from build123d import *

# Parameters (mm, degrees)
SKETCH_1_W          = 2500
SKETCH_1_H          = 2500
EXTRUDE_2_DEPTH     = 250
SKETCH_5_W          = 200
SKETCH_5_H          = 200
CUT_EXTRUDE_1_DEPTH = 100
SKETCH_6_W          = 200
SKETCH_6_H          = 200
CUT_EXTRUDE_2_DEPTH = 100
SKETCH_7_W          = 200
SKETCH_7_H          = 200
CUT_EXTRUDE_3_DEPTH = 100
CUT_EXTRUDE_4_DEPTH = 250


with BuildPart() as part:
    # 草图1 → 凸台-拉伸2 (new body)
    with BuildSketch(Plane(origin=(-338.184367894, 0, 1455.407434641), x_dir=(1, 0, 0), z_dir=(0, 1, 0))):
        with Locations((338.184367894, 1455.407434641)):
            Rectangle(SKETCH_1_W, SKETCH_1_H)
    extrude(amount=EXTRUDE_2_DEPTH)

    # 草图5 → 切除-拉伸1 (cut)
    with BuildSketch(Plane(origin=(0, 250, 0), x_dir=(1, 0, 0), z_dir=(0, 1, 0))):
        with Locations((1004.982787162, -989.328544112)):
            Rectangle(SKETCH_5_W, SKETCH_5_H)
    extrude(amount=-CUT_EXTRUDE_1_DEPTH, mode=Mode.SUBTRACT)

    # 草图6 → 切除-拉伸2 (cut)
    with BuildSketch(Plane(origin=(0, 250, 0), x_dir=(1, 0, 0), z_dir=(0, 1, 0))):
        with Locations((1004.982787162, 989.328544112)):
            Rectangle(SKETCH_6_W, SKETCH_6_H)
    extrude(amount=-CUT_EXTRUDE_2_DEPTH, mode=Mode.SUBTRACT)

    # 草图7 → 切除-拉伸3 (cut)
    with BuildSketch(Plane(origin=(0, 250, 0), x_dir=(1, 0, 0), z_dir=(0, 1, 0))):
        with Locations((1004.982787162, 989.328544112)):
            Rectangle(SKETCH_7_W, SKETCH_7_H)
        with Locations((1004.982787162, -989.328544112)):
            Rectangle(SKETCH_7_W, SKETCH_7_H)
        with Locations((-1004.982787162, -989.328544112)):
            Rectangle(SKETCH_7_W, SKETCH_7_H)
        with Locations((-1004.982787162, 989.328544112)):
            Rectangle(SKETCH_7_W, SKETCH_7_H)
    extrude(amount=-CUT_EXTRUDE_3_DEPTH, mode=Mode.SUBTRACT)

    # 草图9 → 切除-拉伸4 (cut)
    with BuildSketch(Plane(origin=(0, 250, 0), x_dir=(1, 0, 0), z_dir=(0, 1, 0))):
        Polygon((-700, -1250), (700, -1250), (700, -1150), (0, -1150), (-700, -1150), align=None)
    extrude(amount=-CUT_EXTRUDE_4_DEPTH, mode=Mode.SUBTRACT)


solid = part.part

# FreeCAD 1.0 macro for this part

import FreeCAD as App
import Part
import Sketcher
from FreeCAD import Vector

doc = App.newDocument("Part")
body = doc.addObject("PartDesign::Body", "Body")

# Sketch on XZ plane
sketch1 = doc.addObject("Sketcher::SketchObject", "Sketch")
body.addObject(sketch1)
sketch1.AttachmentSupport = (doc.XZ_Plane, [""])
sketch1.MapMode = "FlatFace"
sketch1.addGeometry([
    Part.LineSegment(Vector(-1250, -1250, 0), Vector(-1250, 1250, 0)),
    Part.LineSegment(Vector(-1250, 1250, 0), Vector(1250, 1250, 0)),
    Part.LineSegment(Vector(1250, 1250, 0), Vector(1250, -1250, 0)),
    Part.LineSegment(Vector(1250, -1250, 0), Vector(-1250, -1250, 0)),
], False)
sketch1.addConstraint([
    Sketcher.Constraint("Coincident", 0, 2, 1, 1),
    Sketcher.Constraint("Coincident", 1, 2, 2, 1),
    Sketcher.Constraint("Coincident", 2, 2, 3, 1),
    Sketcher.Constraint("Coincident", 3, 2, 0, 1),
    Sketcher.Constraint("Vertical", 0),
    Sketcher.Constraint("Horizontal", 1),
    Sketcher.Constraint("Vertical", 2),
    Sketcher.Constraint("Horizontal", 3),
    Sketcher.Constraint("Symmetric", 0, 2, 2, 2, -1, 1),
    Sketcher.Constraint("Equal", 3, 0),
    Sketcher.Constraint("DistanceX", 1, 1, 1, 2, 2500.0),
])
pad1 = doc.addObject("PartDesign::Pad", "Pad")
body.addObject(pad1)
pad1.Profile = sketch1
pad1.Length = 250
pad1.Reversed = True

# Sketch on XZ plane
sketch2 = doc.addObject("Sketcher::SketchObject", "Sketch001")
body.addObject(sketch2)
sketch2.AttachmentSupport = (doc.XZ_Plane, [""])
sketch2.MapMode = "FlatFace"
sketch2.AttachmentOffset = App.Placement(Vector(0, 0, -250), App.Rotation())
sketch2.addGeometry([
    Part.LineSegment(Vector(905, 889, 0), Vector(905, 1089, 0)),
    Part.LineSegment(Vector(905, 1089, 0), Vector(1105, 1089, 0)),
    Part.LineSegment(Vector(1105, 1089, 0), Vector(1105, 889, 0)),
    Part.LineSegment(Vector(1105, 889, 0), Vector(905, 889, 0)),
], False)
sketch2.addConstraint([
    Sketcher.Constraint("Coincident", 0, 2, 1, 1),
    Sketcher.Constraint("Coincident", 1, 2, 2, 1),
    Sketcher.Constraint("Coincident", 2, 2, 3, 1),
    Sketcher.Constraint("Coincident", 3, 2, 0, 1),
    Sketcher.Constraint("Vertical", 0),
    Sketcher.Constraint("Horizontal", 1),
    Sketcher.Constraint("Vertical", 2),
    Sketcher.Constraint("Horizontal", 3),
    Sketcher.Constraint("Equal", 3, 0),
    Sketcher.Constraint("DistanceX", 1, 1, 1, 2, 200.0),
    Sketcher.Constraint("DistanceX", -1, 1, 0, 2, 904.982787),
    Sketcher.Constraint("DistanceY", -1, 1, 0, 2, 1089.328544),
])
pocket1 = doc.addObject("PartDesign::Pocket", "Pocket")
body.addObject(pocket1)
pocket1.Profile = sketch2
pocket1.Length = 100
pocket1.Reversed = True

# Sketch on XZ plane
sketch3 = doc.addObject("Sketcher::SketchObject", "Sketch002")
body.addObject(sketch3)
sketch3.AttachmentSupport = (doc.XZ_Plane, [""])
sketch3.MapMode = "FlatFace"
sketch3.AttachmentOffset = App.Placement(Vector(0, 0, -250), App.Rotation())
sketch3.addGeometry([
    Part.LineSegment(Vector(905, -1089, 0), Vector(905, -889, 0)),
    Part.LineSegment(Vector(905, -889, 0), Vector(1105, -889, 0)),
    Part.LineSegment(Vector(1105, -889, 0), Vector(1105, -1089, 0)),
    Part.LineSegment(Vector(1105, -1089, 0), Vector(905, -1089, 0)),
], False)
sketch3.addConstraint([
    Sketcher.Constraint("Coincident", 0, 2, 1, 1),
    Sketcher.Constraint("Coincident", 1, 2, 2, 1),
    Sketcher.Constraint("Coincident", 2, 2, 3, 1),
    Sketcher.Constraint("Coincident", 3, 2, 0, 1),
    Sketcher.Constraint("Vertical", 0),
    Sketcher.Constraint("Horizontal", 1),
    Sketcher.Constraint("Vertical", 2),
    Sketcher.Constraint("Horizontal", 3),
    Sketcher.Constraint("Equal", 3, 0),
    Sketcher.Constraint("DistanceX", 1, 1, 1, 2, 200.0),
    Sketcher.Constraint("DistanceX", -1, 1, 0, 2, 904.982787),
    Sketcher.Constraint("DistanceY", 0, 2, -1, 1, 889.328544),
])
pocket2 = doc.addObject("PartDesign::Pocket", "Pocket001")
body.addObject(pocket2)
pocket2.Profile = sketch3
pocket2.Length = 100
pocket2.Reversed = True

# Sketch on XZ plane
sketch4 = doc.addObject("Sketcher::SketchObject", "Sketch003")
body.addObject(sketch4)
sketch4.AttachmentSupport = (doc.XZ_Plane, [""])
sketch4.MapMode = "FlatFace"
sketch4.AttachmentOffset = App.Placement(Vector(0, 0, -250), App.Rotation())
sketch4.addGeometry([
    Part.LineSegment(Vector(905, -1089, 0), Vector(905, -889, 0)),  # 0
    Part.LineSegment(Vector(905, -889, 0), Vector(1105, -889, 0)),  # 1
    Part.LineSegment(Vector(1105, -889, 0), Vector(1105, -1089, 0)),  # 2
    Part.LineSegment(Vector(1105, -1089, 0), Vector(905, -1089, 0)),  # 3
    Part.LineSegment(Vector(905, 889, 0), Vector(905, 1089, 0)),  # 4
    Part.LineSegment(Vector(905, 1089, 0), Vector(1105, 1089, 0)),  # 5
    Part.LineSegment(Vector(1105, 1089, 0), Vector(1105, 889, 0)),  # 6
    Part.LineSegment(Vector(1105, 889, 0), Vector(905, 889, 0)),  # 7
    Part.LineSegment(Vector(-1105, 889, 0), Vector(-1105, 1089, 0)),  # 8
    Part.LineSegment(Vector(-1105, 1089, 0), Vector(-905, 1089, 0)),  # 9
    Part.LineSegment(Vector(-905, 1089, 0), Vector(-905, 889, 0)),  # 10
    Part.LineSegment(Vector(-905, 889, 0), Vector(-1105, 889, 0)),  # 11
    Part.LineSegment(Vector(-1105, -1089, 0), Vector(-1105, -889, 0)),  # 12
    Part.LineSegment(Vector(-1105, -889, 0), Vector(-905, -889, 0)),  # 13
    Part.LineSegment(Vector(-905, -889, 0), Vector(-905, -1089, 0)),  # 14
    Part.LineSegment(Vector(-905, -1089, 0), Vector(-1105, -1089, 0)),  # 15
], False)
sketch4.addConstraint([
    Sketcher.Constraint("Coincident", 0, 2, 1, 1),
    Sketcher.Constraint("Coincident", 1, 2, 2, 1),
    Sketcher.Constraint("Coincident", 2, 2, 3, 1),
    Sketcher.Constraint("Coincident", 3, 2, 0, 1),
    Sketcher.Constraint("Coincident", 4, 2, 5, 1),
    Sketcher.Constraint("Coincident", 5, 2, 6, 1),
    Sketcher.Constraint("Coincident", 6, 2, 7, 1),
    Sketcher.Constraint("Coincident", 7, 2, 4, 1),
    Sketcher.Constraint("Coincident", 8, 2, 9, 1),
    Sketcher.Constraint("Coincident", 9, 2, 10, 1),
    Sketcher.Constraint("Coincident", 10, 2, 11, 1),
    Sketcher.Constraint("Coincident", 11, 2, 8, 1),
    Sketcher.Constraint("Coincident", 12, 2, 13, 1),
    Sketcher.Constraint("Coincident", 13, 2, 14, 1),
    Sketcher.Constraint("Coincident", 14, 2, 15, 1),
    Sketcher.Constraint("Coincident", 15, 2, 12, 1),
    Sketcher.Constraint("Vertical", 0),
    Sketcher.Constraint("Horizontal", 1),
    Sketcher.Constraint("Vertical", 2),
    Sketcher.Constraint("Horizontal", 3),
    Sketcher.Constraint("Vertical", 4),
    Sketcher.Constraint("Horizontal", 5),
    Sketcher.Constraint("Vertical", 6),
    Sketcher.Constraint("Horizontal", 7),
    Sketcher.Constraint("Vertical", 8),
    Sketcher.Constraint("Horizontal", 9),
    Sketcher.Constraint("Vertical", 10),
    Sketcher.Constraint("Horizontal", 11),
    Sketcher.Constraint("Vertical", 12),
    Sketcher.Constraint("Horizontal", 13),
    Sketcher.Constraint("Vertical", 14),
    Sketcher.Constraint("Horizontal", 15),
    Sketcher.Constraint("Symmetric", 2, 2, 8, 2, -1, 1),
    Sketcher.Constraint("Symmetric", 0, 2, 10, 2, -1, 1),
    Sketcher.Constraint("Symmetric", 6, 2, 12, 2, -1, 1),
    Sketcher.Constraint("Symmetric", 4, 2, 14, 2, -1, 1),
    Sketcher.Constraint("Symmetric", 5, 2, 8, 2, -2),
    Sketcher.Constraint("Symmetric", 7, 2, 10, 2, -2),
    Sketcher.Constraint("Equal", 15, 0),
    Sketcher.Constraint("DistanceX", 1, 1, 1, 2, 200.0),
    Sketcher.Constraint("DistanceY", 0, 2, 4, 2, 1978.657088),
    Sketcher.Constraint("DistanceX", -1, 1, 0, 2, 904.982787),
])
pocket3 = doc.addObject("PartDesign::Pocket", "Pocket002")
body.addObject(pocket3)
pocket3.Profile = sketch4
pocket3.Length = 100
pocket3.Reversed = True

# Sketch on XZ plane
sketch5 = doc.addObject("Sketcher::SketchObject", "Sketch004")
body.addObject(sketch5)
sketch5.AttachmentSupport = (doc.XZ_Plane, [""])
sketch5.MapMode = "FlatFace"
sketch5.AttachmentOffset = App.Placement(Vector(0, 0, -250), App.Rotation())
sketch5.addGeometry([
    Part.LineSegment(Vector(-700, 1250, 0), Vector(700, 1250, 0)),
    Part.LineSegment(Vector(700, 1250, 0), Vector(700, 1150, 0)),
    Part.LineSegment(Vector(700, 1150, 0), Vector(-700, 1150, 0)),
    Part.LineSegment(Vector(-700, 1150, 0), Vector(-700, 1250, 0)),
], False)
sketch5.addConstraint([
    Sketcher.Constraint("Coincident", 0, 2, 1, 1),
    Sketcher.Constraint("Coincident", 1, 2, 2, 1),
    Sketcher.Constraint("Coincident", 2, 2, 3, 1),
    Sketcher.Constraint("Coincident", 3, 2, 0, 1),
    Sketcher.Constraint("Horizontal", 0),
    Sketcher.Constraint("Vertical", 1),
    Sketcher.Constraint("Horizontal", 2),
    Sketcher.Constraint("Vertical", 3),
    Sketcher.Constraint("DistanceX", 0, 1, 0, 2, 1400.0),
    Sketcher.Constraint("DistanceY", 1, 2, 1, 1, 100.0),
    Sketcher.Constraint("DistanceX", -1, 1, 0, 2, 700.0),
    Sketcher.Constraint("DistanceY", -1, 1, 0, 2, 1250.0),
])
pocket4 = doc.addObject("PartDesign::Pocket", "Pocket003")
body.addObject(pocket4)
pocket4.Profile = sketch5
pocket4.Length = 250
pocket4.Reversed = True

doc.recompute()
